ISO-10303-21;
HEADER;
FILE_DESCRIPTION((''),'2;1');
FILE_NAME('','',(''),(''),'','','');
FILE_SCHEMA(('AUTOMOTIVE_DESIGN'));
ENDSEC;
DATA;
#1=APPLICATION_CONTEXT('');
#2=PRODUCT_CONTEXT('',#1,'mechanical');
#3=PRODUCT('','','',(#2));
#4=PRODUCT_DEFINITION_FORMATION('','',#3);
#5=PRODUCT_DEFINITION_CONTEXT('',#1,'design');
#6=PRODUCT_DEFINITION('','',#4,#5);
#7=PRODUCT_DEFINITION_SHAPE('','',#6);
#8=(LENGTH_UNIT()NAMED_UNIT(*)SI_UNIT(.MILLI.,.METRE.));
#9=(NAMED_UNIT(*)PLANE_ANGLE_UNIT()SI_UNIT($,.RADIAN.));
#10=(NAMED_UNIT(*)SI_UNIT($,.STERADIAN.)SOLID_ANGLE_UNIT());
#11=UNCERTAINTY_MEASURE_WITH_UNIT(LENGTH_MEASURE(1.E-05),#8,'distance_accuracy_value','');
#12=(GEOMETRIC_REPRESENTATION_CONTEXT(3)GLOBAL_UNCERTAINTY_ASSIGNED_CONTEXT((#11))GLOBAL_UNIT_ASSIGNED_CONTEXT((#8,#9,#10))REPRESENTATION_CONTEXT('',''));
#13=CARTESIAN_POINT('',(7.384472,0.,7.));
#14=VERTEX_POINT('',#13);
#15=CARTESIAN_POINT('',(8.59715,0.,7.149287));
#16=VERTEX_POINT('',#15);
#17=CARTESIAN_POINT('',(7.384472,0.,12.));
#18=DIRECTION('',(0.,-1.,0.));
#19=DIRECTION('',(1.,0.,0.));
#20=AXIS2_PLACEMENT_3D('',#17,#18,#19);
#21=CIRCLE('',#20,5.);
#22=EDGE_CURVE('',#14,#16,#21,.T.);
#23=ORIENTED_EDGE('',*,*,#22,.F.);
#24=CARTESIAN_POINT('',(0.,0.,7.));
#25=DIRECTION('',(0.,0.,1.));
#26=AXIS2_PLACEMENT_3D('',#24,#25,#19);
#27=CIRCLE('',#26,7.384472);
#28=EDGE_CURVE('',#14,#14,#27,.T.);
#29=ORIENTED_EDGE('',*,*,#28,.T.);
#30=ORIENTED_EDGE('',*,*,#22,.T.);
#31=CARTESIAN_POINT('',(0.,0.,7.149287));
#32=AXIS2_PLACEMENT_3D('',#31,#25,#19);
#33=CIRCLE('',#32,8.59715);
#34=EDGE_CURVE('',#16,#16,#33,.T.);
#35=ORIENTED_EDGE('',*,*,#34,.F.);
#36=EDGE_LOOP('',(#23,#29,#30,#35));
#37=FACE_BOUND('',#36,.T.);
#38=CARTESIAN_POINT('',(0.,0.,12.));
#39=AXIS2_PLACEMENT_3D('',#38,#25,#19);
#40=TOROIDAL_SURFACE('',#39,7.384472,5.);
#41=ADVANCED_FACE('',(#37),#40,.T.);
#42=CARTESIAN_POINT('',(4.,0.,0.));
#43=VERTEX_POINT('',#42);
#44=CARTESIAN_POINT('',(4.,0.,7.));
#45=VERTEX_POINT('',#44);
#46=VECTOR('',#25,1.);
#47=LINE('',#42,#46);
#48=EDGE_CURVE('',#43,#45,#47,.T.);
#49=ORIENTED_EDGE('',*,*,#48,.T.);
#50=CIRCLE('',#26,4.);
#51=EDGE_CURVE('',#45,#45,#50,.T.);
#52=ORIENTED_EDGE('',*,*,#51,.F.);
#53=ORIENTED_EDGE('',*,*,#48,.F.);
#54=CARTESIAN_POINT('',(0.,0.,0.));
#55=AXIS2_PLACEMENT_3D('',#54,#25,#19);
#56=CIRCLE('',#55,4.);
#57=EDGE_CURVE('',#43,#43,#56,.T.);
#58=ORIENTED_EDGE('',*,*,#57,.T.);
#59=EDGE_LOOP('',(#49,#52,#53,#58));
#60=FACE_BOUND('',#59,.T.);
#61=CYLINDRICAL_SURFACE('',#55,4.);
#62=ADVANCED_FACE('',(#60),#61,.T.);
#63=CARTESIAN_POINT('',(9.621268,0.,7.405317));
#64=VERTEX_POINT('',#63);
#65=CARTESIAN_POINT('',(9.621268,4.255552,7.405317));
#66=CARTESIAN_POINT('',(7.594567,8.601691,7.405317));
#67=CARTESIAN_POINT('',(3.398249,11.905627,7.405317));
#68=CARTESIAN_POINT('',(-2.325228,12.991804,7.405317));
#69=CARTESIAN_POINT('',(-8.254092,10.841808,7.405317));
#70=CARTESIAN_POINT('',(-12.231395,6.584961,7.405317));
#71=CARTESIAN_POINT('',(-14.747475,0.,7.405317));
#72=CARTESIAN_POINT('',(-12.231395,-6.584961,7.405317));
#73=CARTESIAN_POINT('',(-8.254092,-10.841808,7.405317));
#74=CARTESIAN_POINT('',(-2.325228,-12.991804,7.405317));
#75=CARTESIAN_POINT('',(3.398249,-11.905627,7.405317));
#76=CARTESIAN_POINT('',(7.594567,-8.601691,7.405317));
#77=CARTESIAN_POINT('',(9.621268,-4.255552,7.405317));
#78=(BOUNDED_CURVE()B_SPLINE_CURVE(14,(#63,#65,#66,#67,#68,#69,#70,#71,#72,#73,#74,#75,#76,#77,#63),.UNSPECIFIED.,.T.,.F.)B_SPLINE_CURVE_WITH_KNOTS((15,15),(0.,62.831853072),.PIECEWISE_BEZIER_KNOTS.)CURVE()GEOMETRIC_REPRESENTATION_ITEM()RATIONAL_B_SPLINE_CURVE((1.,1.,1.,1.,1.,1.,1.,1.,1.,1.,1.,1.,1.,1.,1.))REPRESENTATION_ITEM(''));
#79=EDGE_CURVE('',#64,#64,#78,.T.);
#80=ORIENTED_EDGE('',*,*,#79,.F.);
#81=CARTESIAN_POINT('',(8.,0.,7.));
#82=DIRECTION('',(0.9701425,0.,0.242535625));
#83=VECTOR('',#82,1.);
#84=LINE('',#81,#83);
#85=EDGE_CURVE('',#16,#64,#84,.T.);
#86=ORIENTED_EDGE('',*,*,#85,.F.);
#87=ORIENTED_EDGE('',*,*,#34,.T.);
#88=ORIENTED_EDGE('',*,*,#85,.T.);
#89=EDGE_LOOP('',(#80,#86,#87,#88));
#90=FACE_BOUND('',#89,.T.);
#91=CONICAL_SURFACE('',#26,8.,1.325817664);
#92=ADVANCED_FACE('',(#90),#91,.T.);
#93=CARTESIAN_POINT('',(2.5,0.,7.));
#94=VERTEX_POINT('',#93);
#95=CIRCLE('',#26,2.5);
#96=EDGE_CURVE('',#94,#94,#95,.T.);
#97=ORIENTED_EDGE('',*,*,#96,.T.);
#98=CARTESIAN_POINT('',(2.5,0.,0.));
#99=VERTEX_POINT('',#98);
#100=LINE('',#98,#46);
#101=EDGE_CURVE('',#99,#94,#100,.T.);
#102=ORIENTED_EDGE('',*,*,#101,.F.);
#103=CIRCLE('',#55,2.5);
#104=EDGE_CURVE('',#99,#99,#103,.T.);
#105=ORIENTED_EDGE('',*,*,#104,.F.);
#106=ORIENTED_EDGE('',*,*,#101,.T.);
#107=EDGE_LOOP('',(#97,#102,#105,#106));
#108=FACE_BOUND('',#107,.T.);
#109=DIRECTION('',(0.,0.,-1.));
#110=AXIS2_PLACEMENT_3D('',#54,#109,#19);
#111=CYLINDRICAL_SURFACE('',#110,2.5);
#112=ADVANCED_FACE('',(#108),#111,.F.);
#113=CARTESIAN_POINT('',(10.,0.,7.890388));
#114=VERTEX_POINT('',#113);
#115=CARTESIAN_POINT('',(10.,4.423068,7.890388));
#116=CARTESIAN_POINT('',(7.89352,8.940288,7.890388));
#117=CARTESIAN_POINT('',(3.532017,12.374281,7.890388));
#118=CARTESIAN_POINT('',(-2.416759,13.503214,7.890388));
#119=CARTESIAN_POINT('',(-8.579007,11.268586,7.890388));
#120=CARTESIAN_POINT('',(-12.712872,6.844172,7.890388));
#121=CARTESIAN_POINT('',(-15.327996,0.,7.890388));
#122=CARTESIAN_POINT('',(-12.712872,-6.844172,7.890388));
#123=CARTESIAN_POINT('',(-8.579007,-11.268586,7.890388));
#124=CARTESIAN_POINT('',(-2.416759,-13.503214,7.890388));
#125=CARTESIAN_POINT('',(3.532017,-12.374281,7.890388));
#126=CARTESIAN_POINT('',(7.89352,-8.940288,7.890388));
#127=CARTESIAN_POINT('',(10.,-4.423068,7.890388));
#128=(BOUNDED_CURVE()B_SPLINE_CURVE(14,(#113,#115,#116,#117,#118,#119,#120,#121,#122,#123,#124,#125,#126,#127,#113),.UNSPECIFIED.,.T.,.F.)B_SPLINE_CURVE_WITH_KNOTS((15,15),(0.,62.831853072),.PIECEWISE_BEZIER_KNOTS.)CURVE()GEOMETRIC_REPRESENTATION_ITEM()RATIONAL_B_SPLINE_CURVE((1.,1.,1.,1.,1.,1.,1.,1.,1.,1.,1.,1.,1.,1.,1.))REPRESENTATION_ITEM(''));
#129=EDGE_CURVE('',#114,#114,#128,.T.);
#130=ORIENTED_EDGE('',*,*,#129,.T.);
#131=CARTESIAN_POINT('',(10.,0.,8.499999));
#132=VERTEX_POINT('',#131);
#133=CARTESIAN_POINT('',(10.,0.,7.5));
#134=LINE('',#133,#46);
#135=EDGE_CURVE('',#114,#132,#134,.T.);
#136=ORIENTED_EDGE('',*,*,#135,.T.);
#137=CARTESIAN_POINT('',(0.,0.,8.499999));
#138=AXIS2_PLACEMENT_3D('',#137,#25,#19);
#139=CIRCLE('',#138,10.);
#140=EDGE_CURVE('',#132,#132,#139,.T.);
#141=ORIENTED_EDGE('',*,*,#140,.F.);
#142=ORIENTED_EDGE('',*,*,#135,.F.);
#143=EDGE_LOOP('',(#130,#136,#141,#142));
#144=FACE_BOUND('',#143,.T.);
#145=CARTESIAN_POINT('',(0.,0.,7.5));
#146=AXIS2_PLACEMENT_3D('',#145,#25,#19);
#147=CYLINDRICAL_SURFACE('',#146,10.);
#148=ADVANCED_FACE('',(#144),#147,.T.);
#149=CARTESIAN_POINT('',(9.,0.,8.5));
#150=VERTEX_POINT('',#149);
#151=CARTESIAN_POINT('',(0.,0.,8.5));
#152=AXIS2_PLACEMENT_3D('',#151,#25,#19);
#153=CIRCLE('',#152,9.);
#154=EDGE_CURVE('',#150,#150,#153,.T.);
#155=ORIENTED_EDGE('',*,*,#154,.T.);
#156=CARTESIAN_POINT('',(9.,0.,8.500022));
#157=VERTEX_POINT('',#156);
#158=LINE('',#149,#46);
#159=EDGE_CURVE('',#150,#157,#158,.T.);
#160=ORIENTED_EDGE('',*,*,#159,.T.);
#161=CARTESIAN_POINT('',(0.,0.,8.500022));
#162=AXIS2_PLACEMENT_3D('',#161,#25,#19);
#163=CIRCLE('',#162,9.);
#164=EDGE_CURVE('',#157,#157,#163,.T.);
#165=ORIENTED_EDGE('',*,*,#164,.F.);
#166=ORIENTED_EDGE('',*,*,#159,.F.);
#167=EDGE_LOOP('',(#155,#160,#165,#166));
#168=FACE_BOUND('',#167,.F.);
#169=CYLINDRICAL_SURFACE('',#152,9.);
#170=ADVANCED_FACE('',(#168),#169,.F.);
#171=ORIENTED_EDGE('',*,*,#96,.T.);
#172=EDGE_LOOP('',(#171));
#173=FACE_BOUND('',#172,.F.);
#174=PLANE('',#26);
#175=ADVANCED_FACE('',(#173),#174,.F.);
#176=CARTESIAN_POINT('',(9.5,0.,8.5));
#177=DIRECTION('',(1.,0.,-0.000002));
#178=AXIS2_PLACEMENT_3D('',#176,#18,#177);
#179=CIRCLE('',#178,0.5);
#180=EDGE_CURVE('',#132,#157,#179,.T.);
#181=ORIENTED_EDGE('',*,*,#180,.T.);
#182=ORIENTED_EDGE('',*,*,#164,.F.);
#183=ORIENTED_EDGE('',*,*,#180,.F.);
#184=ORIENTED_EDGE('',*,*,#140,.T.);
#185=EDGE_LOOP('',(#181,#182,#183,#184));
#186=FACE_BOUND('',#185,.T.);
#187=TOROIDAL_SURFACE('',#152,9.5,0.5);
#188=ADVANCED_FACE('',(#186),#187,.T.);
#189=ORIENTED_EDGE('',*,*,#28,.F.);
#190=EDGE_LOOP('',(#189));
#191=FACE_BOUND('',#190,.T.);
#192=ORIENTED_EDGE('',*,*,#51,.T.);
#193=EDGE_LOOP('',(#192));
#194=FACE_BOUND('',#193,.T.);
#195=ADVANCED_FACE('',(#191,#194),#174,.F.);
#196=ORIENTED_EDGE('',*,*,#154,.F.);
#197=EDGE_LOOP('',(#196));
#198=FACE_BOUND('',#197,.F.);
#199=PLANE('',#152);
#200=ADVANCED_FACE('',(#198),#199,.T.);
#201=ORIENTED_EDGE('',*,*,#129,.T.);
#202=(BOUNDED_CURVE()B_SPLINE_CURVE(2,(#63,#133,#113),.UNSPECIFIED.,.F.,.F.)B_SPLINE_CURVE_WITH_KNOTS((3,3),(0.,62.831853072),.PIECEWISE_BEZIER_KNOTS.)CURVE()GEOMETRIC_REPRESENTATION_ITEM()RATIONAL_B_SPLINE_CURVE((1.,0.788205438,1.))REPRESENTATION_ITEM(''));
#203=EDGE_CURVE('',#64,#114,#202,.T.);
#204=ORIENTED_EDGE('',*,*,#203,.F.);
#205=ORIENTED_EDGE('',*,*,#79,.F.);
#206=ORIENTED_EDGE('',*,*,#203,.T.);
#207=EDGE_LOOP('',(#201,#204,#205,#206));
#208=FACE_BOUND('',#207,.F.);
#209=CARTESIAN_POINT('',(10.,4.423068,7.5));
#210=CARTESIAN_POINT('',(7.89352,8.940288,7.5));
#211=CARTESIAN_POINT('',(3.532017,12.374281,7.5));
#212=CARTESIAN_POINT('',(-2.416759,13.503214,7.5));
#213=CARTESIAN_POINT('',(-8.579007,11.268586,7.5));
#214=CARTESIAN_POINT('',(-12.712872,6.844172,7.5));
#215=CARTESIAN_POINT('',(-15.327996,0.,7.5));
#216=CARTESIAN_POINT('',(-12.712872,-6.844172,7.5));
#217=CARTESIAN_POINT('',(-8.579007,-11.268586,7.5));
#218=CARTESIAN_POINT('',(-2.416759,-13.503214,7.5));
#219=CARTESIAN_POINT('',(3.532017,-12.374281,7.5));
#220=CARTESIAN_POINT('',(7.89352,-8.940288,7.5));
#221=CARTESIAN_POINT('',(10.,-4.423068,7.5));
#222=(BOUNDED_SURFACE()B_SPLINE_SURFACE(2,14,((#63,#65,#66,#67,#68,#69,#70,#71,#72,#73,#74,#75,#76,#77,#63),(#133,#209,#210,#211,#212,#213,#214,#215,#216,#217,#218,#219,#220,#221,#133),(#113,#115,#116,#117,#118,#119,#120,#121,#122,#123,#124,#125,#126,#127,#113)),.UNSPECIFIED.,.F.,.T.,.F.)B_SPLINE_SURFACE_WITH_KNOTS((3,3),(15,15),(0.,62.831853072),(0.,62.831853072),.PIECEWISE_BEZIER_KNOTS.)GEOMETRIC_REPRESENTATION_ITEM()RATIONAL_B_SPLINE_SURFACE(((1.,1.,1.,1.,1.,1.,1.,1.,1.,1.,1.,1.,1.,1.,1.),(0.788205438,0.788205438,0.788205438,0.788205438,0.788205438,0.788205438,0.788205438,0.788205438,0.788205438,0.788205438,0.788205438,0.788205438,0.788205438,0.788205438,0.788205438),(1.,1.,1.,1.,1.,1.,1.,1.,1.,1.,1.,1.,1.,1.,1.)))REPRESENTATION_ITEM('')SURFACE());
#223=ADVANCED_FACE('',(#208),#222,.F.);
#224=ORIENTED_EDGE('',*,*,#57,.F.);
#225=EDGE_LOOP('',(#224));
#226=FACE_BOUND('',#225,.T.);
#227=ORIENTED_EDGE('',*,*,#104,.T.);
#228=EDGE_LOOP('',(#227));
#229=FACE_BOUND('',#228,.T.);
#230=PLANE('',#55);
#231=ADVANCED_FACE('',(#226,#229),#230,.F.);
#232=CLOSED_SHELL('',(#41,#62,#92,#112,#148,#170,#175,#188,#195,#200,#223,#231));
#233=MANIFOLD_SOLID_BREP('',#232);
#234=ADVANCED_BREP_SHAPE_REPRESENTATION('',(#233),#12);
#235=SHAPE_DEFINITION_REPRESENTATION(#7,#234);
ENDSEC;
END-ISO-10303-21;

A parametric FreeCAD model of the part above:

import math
import FreeCAD as App
import Part
import Sketcher

V = App.Vector
Q = App.Units.Quantity


def edges_at(feature, points):
    """Names of the edges that pass closest to the given points."""
    edges = feature.Shape.Edges
    near = lambda p: min(range(len(edges)), key=lambda i: edges[i].distToShape(Part.Vertex(*p))[0])
    return sorted({f"Edge{near(p) + 1}" for p in points})

doc = App.newDocument("Part")
body = doc.addObject("PartDesign::Body", "Body")

sketch1 = body.newObject("Sketcher::SketchObject", "Sketch")
sketch1.AttachmentSupport = (doc.getObject("XY_Plane"), [""])
sketch1.MapMode = "FlatFace"
sketch1.addGeometry(Part.Circle(V(0, 0, 0), V(0, 0, 1), 2.5), False)
sketch1.addConstraint([
    Sketcher.Constraint("Coincident", 0, 3, -1, 1),
    Sketcher.Constraint("Diameter", 0, Q("5 mm")),
])
pad1 = body.newObject("PartDesign::Pad", "Pad")
pad1.Profile = sketch1
pad1.Length = 7
body2 = doc.addObject("PartDesign::Body", "Body001")

sketch2 = body2.newObject("Sketcher::SketchObject", "Sketch001")
sketch2.AttachmentSupport = (doc.getObject("XZ_Plane001"), [""])
sketch2.MapMode = "FlatFace"
sketch2.addGeometry([
    Part.LineSegment(V(0, 0, 0), V(4, 0, 0)),
    Part.LineSegment(V(4, 0, 0), V(4, 7, 0)),
    Part.LineSegment(V(4, 7, 0), V(8, 7, 0)),
    Part.LineSegment(V(8, 7, 0), V(10, 7.5, 0)),
    Part.LineSegment(V(10, 7.5, 0), V(10, 8.499999, 0)),
    Part.ArcOfCircle(Part.Circle(V(9.5, 8.5, 0), V(0, 0, 1), 0.5), math.radians(-0.000115), math.radians(179.997479)),
    Part.LineSegment(V(9, 8.500022, 0), V(9, 8.5, 0)),
    Part.LineSegment(V(9, 8.5, 0), V(0, 8.5, 0)),
    Part.LineSegment(V(0, 8.5, 0), V(0, 0, 0)),
], False)
sketch2.addConstraint([
    Sketcher.Constraint("Coincident", 0, 2, 1, 1),
    Sketcher.Constraint("Coincident", 1, 2, 2, 1),
    Sketcher.Constraint("Coincident", 2, 2, 3, 1),
    Sketcher.Constraint("Coincident", 3, 2, 4, 1),
    Sketcher.Constraint("Tangent", 4, 2, 5, 1),
    Sketcher.Constraint("Coincident", 5, 2, 6, 1),
    Sketcher.Constraint("Coincident", 6, 2, 7, 1),
    Sketcher.Constraint("Coincident", 7, 2, 8, 1),
    Sketcher.Constraint("Coincident", 8, 2, 0, 1),
    Sketcher.Constraint("Horizontal", 0),
    Sketcher.Constraint("Vertical", 1),
    Sketcher.Constraint("Horizontal", 2),
    Sketcher.Constraint("Vertical", 4),
    Sketcher.Constraint("Vertical", 6),
    Sketcher.Constraint("Horizontal", 7),
    Sketcher.Constraint("Vertical", 8),
    Sketcher.Constraint("Coincident", 8, 2, -1, 1),
    Sketcher.Constraint("Horizontal", 4, 2, 6, 2),
    Sketcher.Constraint("Equal", 0, 2),
    Sketcher.Constraint("Radius", 5, Q("0.5 mm")),
    Sketcher.Constraint("DistanceX", 0, 1, 0, 2, Q("4 mm")),
    Sketcher.Constraint("DistanceX", 7, 2, 7, 1, Q("9 mm")),
    Sketcher.Constraint("DistanceY", 1, 1, 1, 2, Q("7 mm")),
    Sketcher.Constraint("DistanceY", 4, 1, 4, 2, Q("0.999999 mm")),
    Sketcher.Constraint("DistanceY", 8, 2, 8, 1, Q("8.5 mm")),
    Sketcher.Constraint("DistanceY", -1, 1, 5, 2, Q("8.500022 mm")),
])
revolution = body2.newObject("PartDesign::Revolution", "Revolution")
revolution.Profile = sketch2
revolution.ReferenceAxis = (sketch2, ["V_Axis"])
revolution.Angle = 360
doc.recompute()

fillet = body2.newObject("PartDesign::Fillet", "Fillet")
fillet.Base = (revolution, edges_at(revolution, [(-8, 0, 7)]))
fillet.Radius = 5
doc.recompute()

fillet2 = body2.newObject("PartDesign::Fillet", "Fillet001")
fillet2.Base = (fillet, edges_at(fillet, [(-10, 0, 7.5)]))
fillet2.Radius = 0.5
doc.recompute()

boolean = body2.newObject("PartDesign::Boolean", "Boolean")
boolean.Type = "Cut"
boolean.addObjects([body])

doc.recompute()
